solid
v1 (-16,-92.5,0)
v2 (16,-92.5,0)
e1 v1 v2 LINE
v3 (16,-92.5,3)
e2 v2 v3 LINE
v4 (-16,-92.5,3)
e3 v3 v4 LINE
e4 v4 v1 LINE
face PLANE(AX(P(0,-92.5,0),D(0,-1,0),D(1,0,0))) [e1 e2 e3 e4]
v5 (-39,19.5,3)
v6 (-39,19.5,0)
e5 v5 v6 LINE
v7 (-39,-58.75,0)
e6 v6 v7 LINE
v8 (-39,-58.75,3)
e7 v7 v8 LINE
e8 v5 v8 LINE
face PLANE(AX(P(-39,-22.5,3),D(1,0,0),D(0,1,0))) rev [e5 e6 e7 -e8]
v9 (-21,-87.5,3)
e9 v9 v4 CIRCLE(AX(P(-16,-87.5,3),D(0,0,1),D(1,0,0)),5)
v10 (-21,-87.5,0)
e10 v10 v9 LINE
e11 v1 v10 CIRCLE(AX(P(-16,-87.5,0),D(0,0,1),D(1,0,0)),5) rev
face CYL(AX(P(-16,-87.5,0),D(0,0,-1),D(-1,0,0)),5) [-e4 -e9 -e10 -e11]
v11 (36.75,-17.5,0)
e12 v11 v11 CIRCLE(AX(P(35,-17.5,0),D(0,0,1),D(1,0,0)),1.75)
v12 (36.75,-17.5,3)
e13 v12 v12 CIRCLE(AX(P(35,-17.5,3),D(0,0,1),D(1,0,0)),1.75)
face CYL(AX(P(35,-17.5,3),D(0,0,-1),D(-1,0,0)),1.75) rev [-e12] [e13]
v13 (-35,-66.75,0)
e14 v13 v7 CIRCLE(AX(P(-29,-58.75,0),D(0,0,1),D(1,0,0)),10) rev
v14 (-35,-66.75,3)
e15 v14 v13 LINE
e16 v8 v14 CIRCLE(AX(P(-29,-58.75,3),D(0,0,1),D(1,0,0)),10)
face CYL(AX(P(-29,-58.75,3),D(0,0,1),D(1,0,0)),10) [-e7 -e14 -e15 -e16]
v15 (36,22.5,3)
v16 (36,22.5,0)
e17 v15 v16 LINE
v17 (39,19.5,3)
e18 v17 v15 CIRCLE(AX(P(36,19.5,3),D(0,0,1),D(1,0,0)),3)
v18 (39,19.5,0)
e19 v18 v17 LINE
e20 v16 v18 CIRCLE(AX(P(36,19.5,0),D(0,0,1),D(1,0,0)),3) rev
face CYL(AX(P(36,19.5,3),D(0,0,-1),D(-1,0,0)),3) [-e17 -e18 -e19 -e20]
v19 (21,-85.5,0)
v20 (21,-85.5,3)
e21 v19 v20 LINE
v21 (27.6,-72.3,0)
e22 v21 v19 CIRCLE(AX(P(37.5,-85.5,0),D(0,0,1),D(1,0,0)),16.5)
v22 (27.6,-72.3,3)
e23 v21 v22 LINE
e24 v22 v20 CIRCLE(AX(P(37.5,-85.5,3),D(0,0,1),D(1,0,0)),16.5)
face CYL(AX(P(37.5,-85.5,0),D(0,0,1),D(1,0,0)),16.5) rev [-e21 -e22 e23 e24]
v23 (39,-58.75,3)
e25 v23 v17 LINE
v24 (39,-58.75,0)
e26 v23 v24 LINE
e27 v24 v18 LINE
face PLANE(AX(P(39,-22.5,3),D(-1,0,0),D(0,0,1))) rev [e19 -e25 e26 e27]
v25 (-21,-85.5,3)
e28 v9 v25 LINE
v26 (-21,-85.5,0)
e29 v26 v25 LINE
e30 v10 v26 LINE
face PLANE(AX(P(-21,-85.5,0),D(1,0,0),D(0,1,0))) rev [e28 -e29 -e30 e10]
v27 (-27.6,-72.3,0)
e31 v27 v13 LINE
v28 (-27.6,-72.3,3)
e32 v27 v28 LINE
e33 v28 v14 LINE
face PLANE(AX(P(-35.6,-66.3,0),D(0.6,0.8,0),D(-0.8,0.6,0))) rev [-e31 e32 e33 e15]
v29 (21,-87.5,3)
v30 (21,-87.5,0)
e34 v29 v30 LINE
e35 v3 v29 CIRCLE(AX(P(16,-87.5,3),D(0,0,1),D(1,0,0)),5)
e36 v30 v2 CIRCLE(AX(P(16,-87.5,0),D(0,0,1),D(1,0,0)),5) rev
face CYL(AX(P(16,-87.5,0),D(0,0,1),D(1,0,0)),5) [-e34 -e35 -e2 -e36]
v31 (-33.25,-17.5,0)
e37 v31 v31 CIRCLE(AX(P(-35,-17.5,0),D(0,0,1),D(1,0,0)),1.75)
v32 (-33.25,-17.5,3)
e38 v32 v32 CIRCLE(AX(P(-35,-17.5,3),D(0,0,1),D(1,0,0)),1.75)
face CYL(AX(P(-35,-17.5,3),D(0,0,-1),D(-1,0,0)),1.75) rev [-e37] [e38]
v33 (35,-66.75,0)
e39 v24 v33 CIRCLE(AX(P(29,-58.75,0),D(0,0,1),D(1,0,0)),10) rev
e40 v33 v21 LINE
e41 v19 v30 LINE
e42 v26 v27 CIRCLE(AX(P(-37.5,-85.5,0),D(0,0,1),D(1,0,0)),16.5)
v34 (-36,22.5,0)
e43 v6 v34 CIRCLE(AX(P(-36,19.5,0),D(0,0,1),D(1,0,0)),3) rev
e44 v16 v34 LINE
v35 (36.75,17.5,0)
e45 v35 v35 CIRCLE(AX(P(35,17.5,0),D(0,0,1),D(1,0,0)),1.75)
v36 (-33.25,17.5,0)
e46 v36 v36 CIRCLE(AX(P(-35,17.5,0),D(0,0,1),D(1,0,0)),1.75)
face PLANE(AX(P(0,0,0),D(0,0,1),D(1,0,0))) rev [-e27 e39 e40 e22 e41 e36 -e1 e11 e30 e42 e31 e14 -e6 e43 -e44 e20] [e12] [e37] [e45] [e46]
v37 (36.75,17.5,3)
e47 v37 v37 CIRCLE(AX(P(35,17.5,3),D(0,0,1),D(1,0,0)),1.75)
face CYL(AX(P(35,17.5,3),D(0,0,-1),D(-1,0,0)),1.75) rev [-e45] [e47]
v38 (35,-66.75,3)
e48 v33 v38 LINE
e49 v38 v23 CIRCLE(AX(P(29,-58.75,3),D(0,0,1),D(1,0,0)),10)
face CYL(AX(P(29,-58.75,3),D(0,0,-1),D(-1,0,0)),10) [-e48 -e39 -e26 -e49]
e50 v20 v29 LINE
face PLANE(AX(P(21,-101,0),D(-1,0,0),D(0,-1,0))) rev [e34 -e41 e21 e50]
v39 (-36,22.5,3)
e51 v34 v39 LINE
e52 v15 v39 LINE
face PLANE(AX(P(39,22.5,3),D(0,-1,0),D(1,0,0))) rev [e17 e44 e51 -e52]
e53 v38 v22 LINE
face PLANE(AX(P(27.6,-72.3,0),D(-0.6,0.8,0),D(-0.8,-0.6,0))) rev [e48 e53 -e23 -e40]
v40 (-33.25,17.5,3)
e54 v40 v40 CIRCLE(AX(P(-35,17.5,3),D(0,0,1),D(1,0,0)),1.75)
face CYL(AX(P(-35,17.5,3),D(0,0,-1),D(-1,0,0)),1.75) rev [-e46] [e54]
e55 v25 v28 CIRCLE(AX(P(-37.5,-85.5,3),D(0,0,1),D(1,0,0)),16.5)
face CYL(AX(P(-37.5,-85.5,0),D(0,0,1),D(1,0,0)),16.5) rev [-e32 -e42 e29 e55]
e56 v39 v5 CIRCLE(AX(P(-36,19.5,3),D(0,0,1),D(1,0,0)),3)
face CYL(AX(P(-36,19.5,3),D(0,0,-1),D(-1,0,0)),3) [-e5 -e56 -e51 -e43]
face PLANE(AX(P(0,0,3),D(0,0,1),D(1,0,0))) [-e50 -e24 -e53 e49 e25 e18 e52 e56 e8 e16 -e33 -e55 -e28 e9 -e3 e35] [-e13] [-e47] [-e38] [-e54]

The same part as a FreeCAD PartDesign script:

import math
import FreeCAD as App
import Part
import Sketcher

V = App.Vector


def edges_at(feature, points):
    """Names of the edges that pass closest to the given points."""
    edges = feature.Shape.Edges
    near = lambda p: min(range(len(edges)), key=lambda i: edges[i].distToShape(Part.Vertex(*p))[0])
    return sorted({f"Edge{near(p) + 1}" for p in points})

doc = App.newDocument("Part")
body = doc.addObject("PartDesign::Body", "Body")

# Sketch on XY plane
sketch1 = body.newObject("Sketcher::SketchObject", "Sketch")
sketch1.AttachmentSupport = (doc.getObject("XY_Plane"), [""])
sketch1.MapMode = "FlatFace"
sketch1.addGeometry([
    Part.LineSegment(V(-39, 22.5, 0), V(-39, -22.5, 0)),  # 0
    Part.LineSegment(V(-39, -22.5, 0), V(39, -22.5, 0)),  # 1
    Part.LineSegment(V(39, -22.5, 0), V(39, 22.5, 0)),  # 2
    Part.LineSegment(V(39, 22.5, 0), V(-39, 22.5, 0)),  # 3
    Part.Circle(V(-35, -17.5, 0), V(0, 0, 1), 1.75),  # 4
    Part.Circle(V(35, -17.5, 0), V(0, 0, 1), 1.75),  # 5
    Part.Circle(V(-35, 17.5, 0), V(0, 0, 1), 1.75),  # 6
    Part.Circle(V(35, 17.5, 0), V(0, 0, 1), 1.75),  # 7
], False)
sketch1.addConstraint([
    Sketcher.Constraint("Coincident", 0, 2, 1, 1),
    Sketcher.Constraint("Coincident", 1, 2, 2, 1),
    Sketcher.Constraint("Coincident", 2, 2, 3, 1),
    Sketcher.Constraint("Coincident", 3, 2, 0, 1),
    Sketcher.Constraint("Vertical", 0),
    Sketcher.Constraint("Horizontal", 1),
    Sketcher.Constraint("Vertical", 2),
    Sketcher.Constraint("Horizontal", 3),
    Sketcher.Constraint("Equal", 4, 5),
    Sketcher.Constraint("Equal", 5, 6),
    Sketcher.Constraint("Equal", 6, 7),
    Sketcher.Constraint("Symmetric", 5, 3, 6, 3, -1, 1),
    Sketcher.Constraint("Symmetric", 4, 3, 7, 3, -1, 1),
    Sketcher.Constraint("Symmetric", 0, 2, 2, 2, -1, 1),
    Sketcher.Constraint("Symmetric", 4, 3, 5, 3, -2),
    Sketcher.Constraint("Diameter", 4, 3.5),
    Sketcher.Constraint("DistanceX", 1, 1, 1, 2, 78.0),
    Sketcher.Constraint("DistanceY", 0, 2, 0, 1, 45.0),
    Sketcher.Constraint("DistanceX", 4, 3, -1, 1, 35.0),
    Sketcher.Constraint("DistanceY", 4, 3, 6, 3, 35.0),
])
pad1 = body.newObject("PartDesign::Pad", "Pad")
pad1.Profile = sketch1
pad1.Length = 3

# Sketch on XZ plane
sketch2 = body.newObject("Sketcher::SketchObject", "Sketch001")
sketch2.AttachmentSupport = (doc.getObject("XZ_Plane"), [""])
sketch2.MapMode = "FlatFace"
sketch2.AttachmentOffset = App.Placement(V(0, 0, 22.5), App.Rotation())
sketch2.addGeometry([
    Part.LineSegment(V(-39, 3, 0), V(-39, 0, 0)),
    Part.LineSegment(V(-39, 0, 0), V(39, 0, 0)),
    Part.LineSegment(V(39, 0, 0), V(39, 3, 0)),
    Part.LineSegment(V(39, 3, 0), V(-39, 3, 0)),
], False)
sketch2.addConstraint([
    Sketcher.Constraint("Coincident", 0, 2, 1, 1),
    Sketcher.Constraint("Coincident", 1, 2, 2, 1),
    Sketcher.Constraint("Coincident", 2, 2, 3, 1),
    Sketcher.Constraint("Coincident", 3, 2, 0, 1),
    Sketcher.Constraint("Vertical", 0),
    Sketcher.Constraint("Horizontal", 1),
    Sketcher.Constraint("Vertical", 2),
    Sketcher.Constraint("Horizontal", 3),
    Sketcher.Constraint("Symmetric", 0, 2, 1, 2, -1, 1),
    Sketcher.Constraint("DistanceX", 1, 1, 1, 2, 78.0),
    Sketcher.Constraint("DistanceY", 0, 2, 0, 1, 3.0),
])
pad2 = body.newObject("PartDesign::Pad", "Pad001")
pad2.Profile = sketch2
pad2.Length = 70

# Sketch on XY plane
sketch3 = body.newObject("Sketcher::SketchObject", "Sketch002")
sketch3.AttachmentSupport = (doc.getObject("XY_Plane"), [""])
sketch3.MapMode = "FlatFace"
sketch3.AttachmentOffset = App.Placement(V(0, 0, 3), App.Rotation())
sketch3.addGeometry([
    Part.LineSegment(V(91.469533, -36.924564, 0), V(41, -36.924564, 0)),  # 0
    Part.LineSegment(V(41, -36.924564, 0), V(41, -55.5, 0)),  # 1
    Part.ArcOfCircle(Part.Circle(V(27.5, -55.5, 0), V(0, 0, 1), 13.5), math.radians(-53.130102), math.radians(0)),  # 2
    Part.LineSegment(V(35.6, -66.3, 0), V(27.6, -72.3, 0)),  # 3
    Part.ArcOfCircle(Part.Circle(V(37.5, -85.5, 0), V(0, 0, 1), 16.5), math.radians(126.869898), math.radians(180)),  # 4
    Part.LineSegment(V(21, -85.5, 0), V(21, -101, 0)),  # 5
    Part.ArcOfCircle(Part.Circle(V(15.5, -101, 0), V(0, 0, 1), 5.5), math.radians(-90), math.radians(0)),  # 6
    Part.LineSegment(V(15.5, -106.5, 0), V(-15.5, -106.5, 0)),  # 7
    Part.ArcOfCircle(Part.Circle(V(-15.5, -101, 0), V(0, 0, 1), 5.5), math.radians(180), math.radians(270)),  # 8
    Part.LineSegment(V(-21, -101, 0), V(-21, -85.5, 0)),  # 9
    Part.ArcOfCircle(Part.Circle(V(-37.5, -85.5, 0), V(0, 0, 1), 16.5), math.radians(0), math.radians(53.130102)),  # 10
    Part.LineSegment(V(-27.6, -72.3, 0), V(-35.6, -66.3, 0)),  # 11
    Part.ArcOfCircle(Part.Circle(V(-27.5, -55.5, 0), V(0, 0, 1), 13.5), math.radians(-180), math.radians(-126.869898)),  # 12
    Part.LineSegment(V(-41, -55.5, 0), V(-41, -36.924564, 0)),  # 13
    Part.LineSegment(V(-41, -36.924564, 0), V(-81.655398, -36.924564, 0)),  # 14
    Part.LineSegment(V(-81.655398, -36.924564, 0), V(-84.509711, -42.475127, 0)),  # 15
    Part.LineSegment(V(-84.509711, -42.475127, 0), V(-67.027042, -120.255163, 0)),  # 16
    Part.LineSegment(V(-67.027042, -120.255163, 0), V(78.542933, -118.649612, 0)),  # 17
    Part.LineSegment(V(78.542933, -118.649612, 0), V(91.469533, -36.924564, 0)),  # 18
], False)
sketch3.addConstraint([
    Sketcher.Constraint("Coincident", 0, 2, 1, 1),
    Sketcher.Constraint("Tangent", 1, 2, 2, 2),
    Sketcher.Constraint("Tangent", 2, 1, 3, 1),
    Sketcher.Constraint("Tangent", 3, 2, 4, 1),
    Sketcher.Constraint("Tangent", 4, 2, 5, 1),
    Sketcher.Constraint("Tangent", 5, 2, 6, 2),
    Sketcher.Constraint("Tangent", 6, 1, 7, 1),
    Sketcher.Constraint("Tangent", 7, 2, 8, 2),
    Sketcher.Constraint("Tangent", 8, 1, 9, 1),
    Sketcher.Constraint("Tangent", 9, 2, 10, 1),
    Sketcher.Constraint("Tangent", 10, 2, 11, 1),
    Sketcher.Constraint("Tangent", 11, 2, 12, 2),
    Sketcher.Constraint("Tangent", 12, 1, 13, 1),
    Sketcher.Constraint("Coincident", 13, 2, 14, 1),
    Sketcher.Constraint("Coincident", 14, 2, 15, 1),
    Sketcher.Constraint("Coincident", 15, 2, 16, 1),
    Sketcher.Constraint("Coincident", 16, 2, 17, 1),
    Sketcher.Constraint("Coincident", 17, 2, 18, 1),
    Sketcher.Constraint("Coincident", 18, 2, 0, 1),
    Sketcher.Constraint("Horizontal", 0),
    Sketcher.Constraint("Vertical", 1),
    Sketcher.Constraint("Vertical", 5),
    Sketcher.Constraint("Horizontal", 7),
    Sketcher.Constraint("Vertical", 9),
    Sketcher.Constraint("Vertical", 13),
    Sketcher.Constraint("Horizontal", 14),
    Sketcher.Constraint("Equal", 6, 8),
    Sketcher.Constraint("Equal", 4, 10),
    Sketcher.Constraint("Equal", 2, 12),
    Sketcher.Constraint("Symmetric", 4, 3, 10, 3, -2),
    Sketcher.Constraint("Symmetric", 2, 3, 12, 3, -2),
    Sketcher.Constraint("Horizontal", 0, 2, 13, 2),
    Sketcher.Constraint("Radius", 2, 13.5),
    Sketcher.Constraint("Radius", 4, 16.5),
    Sketcher.Constraint("Radius", 6, 5.5),
    Sketcher.Constraint("DistanceX", 7, 2, 7, 1, 31.0),
    Sketcher.Constraint("Distance", 3, 10.0),
    Sketcher.Constraint("DistanceY", 5, 2, 5, 1, 15.5),
    Sketcher.Constraint("DistanceY", 6, 3, -1, 1, 101.0),
    Sketcher.Constraint("DistanceX", -1, 1, 0, 2, 41.0),
    Sketcher.Constraint("Distance", 17, 145.578829),
    Sketcher.Constraint("DistanceX", 0, 2, 0, 1, 50.469533),
    Sketcher.Constraint("DistanceX", 14, 2, 14, 1, 40.655398),
    Sketcher.Constraint("DistanceY", 1, 2, 1, 1, 18.575436),
    Sketcher.Constraint("DistanceX", 15, 2, -1, 1, 84.509711),
    Sketcher.Constraint("DistanceY", 17, 2, -1, 1, 118.649612),
    Sketcher.Constraint("Distance", 15, 6.241462),
    Sketcher.Constraint("Distance", 16, 79.720623),
    Sketcher.Constraint("Distance", 18, 82.741044),
])
pocket1 = body.newObject("PartDesign::Pocket", "Pocket")
pocket1.Profile = sketch3
pocket1.Type = "ThroughAll"
doc.recompute()

fillet = body.newObject("PartDesign::Fillet", "Fillet")
fillet.Base = (pocket1, edges_at(pocket1, [(21, -92.5, 1.5), (-21, -92.5, 1.5)]))
fillet.Radius = 5
doc.recompute()

fillet2 = body.newObject("PartDesign::Fillet", "Fillet001")
fillet2.Base = (fillet, edges_at(fillet, [(39, -62.571, 1.5), (-39, -62.571, 1.5)]))
fillet2.Radius = 10
doc.recompute()

fillet3 = body.newObject("PartDesign::Fillet", "Fillet002")
fillet3.Base = (fillet2, edges_at(fillet2, [(-39, 22.5, 1.5), (39, 22.5, 1.5)]))
fillet3.Radius = 3

doc.recompute()
